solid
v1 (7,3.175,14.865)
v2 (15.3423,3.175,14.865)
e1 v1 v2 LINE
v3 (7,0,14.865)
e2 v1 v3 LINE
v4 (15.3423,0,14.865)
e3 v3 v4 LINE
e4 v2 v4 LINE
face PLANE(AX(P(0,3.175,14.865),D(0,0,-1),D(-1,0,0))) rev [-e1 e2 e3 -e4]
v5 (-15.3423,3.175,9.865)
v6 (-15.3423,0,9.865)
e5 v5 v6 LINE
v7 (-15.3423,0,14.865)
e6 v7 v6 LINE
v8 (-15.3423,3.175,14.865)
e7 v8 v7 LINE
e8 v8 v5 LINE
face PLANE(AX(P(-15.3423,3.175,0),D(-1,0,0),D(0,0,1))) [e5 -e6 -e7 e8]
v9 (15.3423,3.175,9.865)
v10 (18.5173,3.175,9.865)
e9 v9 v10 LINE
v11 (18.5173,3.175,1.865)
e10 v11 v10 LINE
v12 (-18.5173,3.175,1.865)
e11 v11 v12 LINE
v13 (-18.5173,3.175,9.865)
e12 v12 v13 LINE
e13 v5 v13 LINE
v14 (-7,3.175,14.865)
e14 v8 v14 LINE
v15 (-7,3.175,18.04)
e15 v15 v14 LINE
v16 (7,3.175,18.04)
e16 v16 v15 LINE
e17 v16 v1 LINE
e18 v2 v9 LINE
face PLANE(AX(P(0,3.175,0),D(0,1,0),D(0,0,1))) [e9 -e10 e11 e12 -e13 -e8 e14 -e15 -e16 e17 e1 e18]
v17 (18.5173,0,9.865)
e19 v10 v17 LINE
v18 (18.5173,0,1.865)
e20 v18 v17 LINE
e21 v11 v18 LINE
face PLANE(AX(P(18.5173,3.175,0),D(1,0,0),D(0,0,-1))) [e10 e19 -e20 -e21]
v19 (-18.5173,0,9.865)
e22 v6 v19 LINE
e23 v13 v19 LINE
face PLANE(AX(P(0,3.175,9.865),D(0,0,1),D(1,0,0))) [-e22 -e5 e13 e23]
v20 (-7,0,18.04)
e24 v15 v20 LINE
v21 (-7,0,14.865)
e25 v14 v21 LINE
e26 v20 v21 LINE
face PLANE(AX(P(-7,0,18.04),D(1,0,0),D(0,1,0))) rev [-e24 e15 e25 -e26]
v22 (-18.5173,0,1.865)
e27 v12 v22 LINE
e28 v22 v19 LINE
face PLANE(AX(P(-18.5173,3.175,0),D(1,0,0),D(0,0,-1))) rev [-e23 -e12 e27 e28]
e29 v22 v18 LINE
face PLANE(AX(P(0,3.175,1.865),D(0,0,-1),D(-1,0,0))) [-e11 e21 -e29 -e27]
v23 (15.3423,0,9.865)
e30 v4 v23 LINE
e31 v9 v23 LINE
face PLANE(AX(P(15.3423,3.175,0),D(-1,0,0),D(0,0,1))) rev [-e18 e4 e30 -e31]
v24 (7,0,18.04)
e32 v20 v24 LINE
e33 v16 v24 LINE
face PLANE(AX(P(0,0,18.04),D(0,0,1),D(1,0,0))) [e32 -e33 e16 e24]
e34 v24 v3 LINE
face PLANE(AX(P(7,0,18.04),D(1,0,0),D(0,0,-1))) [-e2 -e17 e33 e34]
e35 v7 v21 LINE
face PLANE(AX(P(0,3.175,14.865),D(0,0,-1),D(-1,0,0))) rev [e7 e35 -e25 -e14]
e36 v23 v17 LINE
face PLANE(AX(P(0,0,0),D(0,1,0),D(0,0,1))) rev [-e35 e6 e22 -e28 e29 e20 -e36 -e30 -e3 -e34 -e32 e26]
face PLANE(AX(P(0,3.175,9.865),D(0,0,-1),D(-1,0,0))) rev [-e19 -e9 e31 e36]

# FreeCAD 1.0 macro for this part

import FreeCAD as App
import Part
import Sketcher

V = App.Vector
Q = App.Units.Quantity


def add_polygon(sketch, points):
    """Adds a closed chain of lines whose ends are joined by coincident constraints."""
    first, n = sketch.GeometryCount, len(points)
    for a, b in zip(points, points[1:] + points[:1]):
        sketch.addGeometry(Part.LineSegment(App.Vector(*a, 0), App.Vector(*b, 0)), False)
    for i in range(n):
        sketch.addConstraint(Sketcher.Constraint("Coincident", first + i, 2, first + (i + 1) % n, 1))

doc = App.newDocument("Part")
params = doc.addObject("Spreadsheet::Sheet", "Params")
for row, (alias, value) in enumerate([
    ("sketch1_height", "8 mm"),
    ("sketch1_height2", "5 mm"),
    ("sketch1_height3", "3.73 mm"),
    ("pad1_length", "3.175 mm"),
    ("sketch2_width", "14 mm"),
    ("pad2_length", "3.175 mm"),
    ("pocket1_length", "3.175 mm"),
], start=1):
    params.set(f"A{row}", alias)
    params.set(f"B{row}", "=" + value)
    params.setAlias(f"B{row}", alias)

body = doc.addObject("PartDesign::Body", "Body")

sketch1 = body.newObject("Sketcher::SketchObject", "Sketch")
sketch1.AttachmentSupport = (doc.getObject("XZ_Plane"), [""])
sketch1.MapMode = "FlatFace"
add_polygon(sketch1, [(-18.5173, -9.865), (-18.5173, -1.865), (-15.3423, -1.865), (-15.3423, 1.865), (-18.5173, 1.865), (-18.5173, 9.865), (-15.3423, 9.865), (-15.3423, 14.865), (15.3423, 14.865), (15.3423, 9.865), (18.5173, 9.865), (18.5173, 1.865), (15.3423, 1.865), (15.3423, -1.865), (18.5173, -1.865), (18.5173, -9.865), (15.3423, -9.865), (15.3423, -14.865), (-15.3423, -14.865), (-15.3423, -9.865)])
sketch1.addConstraint([
    Sketcher.Constraint("Vertical", 0),
    Sketcher.Constraint("Horizontal", 1),
    Sketcher.Constraint("Vertical", 2),
    Sketcher.Constraint("Horizontal", 3),
    Sketcher.Constraint("Vertical", 4),
    Sketcher.Constraint("Horizontal", 5),
    Sketcher.Constraint("Vertical", 6),
    Sketcher.Constraint("Horizontal", 7),
    Sketcher.Constraint("Vertical", 8),
    Sketcher.Constraint("Horizontal", 9),
    Sketcher.Constraint("Vertical", 10),
    Sketcher.Constraint("Horizontal", 11),
    Sketcher.Constraint("Vertical", 12),
    Sketcher.Constraint("Horizontal", 13),
    Sketcher.Constraint("Vertical", 14),
    Sketcher.Constraint("Horizontal", 15),
    Sketcher.Constraint("Vertical", 16),
    Sketcher.Constraint("Horizontal", 17),
    Sketcher.Constraint("Vertical", 18),
    Sketcher.Constraint("Horizontal", 19),
    Sketcher.Constraint("Symmetric", 0, 2, 10, 2, -1, 1),
    Sketcher.Constraint("Symmetric", 2, 2, 12, 2, -1, 1),
    Sketcher.Constraint("Symmetric", 4, 2, 14, 2, -1, 1),
    Sketcher.Constraint("Symmetric", 6, 2, 16, 2, -1, 1),
    Sketcher.Constraint("Symmetric", 8, 2, 18, 2, -1, 1),
    Sketcher.Constraint("Symmetric", 5, 2, 8, 2, -2),
    Sketcher.Constraint("Symmetric", 3, 2, 10, 2, -2),
    Sketcher.Constraint("Vertical", 2, 2, 5, 2),
    Sketcher.Constraint("DistanceY", 0, 1, 0, 2, Q("8 mm")),
    Sketcher.Constraint("DistanceY", 6, 1, 6, 2, Q("5 mm")),
    Sketcher.Constraint("DistanceY", 2, 1, 2, 2, Q("3.73 mm")),
    Sketcher.Constraint("DistanceX", 1, 1, 1, 2, Q("3.175 mm")),
    Sketcher.Constraint("DistanceX", 7, 1, 7, 2, Q("30.6846 mm")),
])
sketch1.setExpression("Constraints[48]", "Params.sketch1_height")
sketch1.setExpression("Constraints[49]", "Params.sketch1_height2")
sketch1.setExpression("Constraints[50]", "Params.sketch1_height3")
pad1 = body.newObject("PartDesign::Pad", "Pad")
pad1.Profile = sketch1
pad1.setExpression("Length", "Params.pad1_length")
pad1.Reversed = True

sketch2 = body.newObject("Sketcher::SketchObject", "Sketch001")
sketch2.AttachmentSupport = (doc.getObject("XY_Plane"), [""])
sketch2.MapMode = "FlatFace"
sketch2.AttachmentOffset = App.Placement(V(0, 0, 14.865), App.Rotation())
add_polygon(sketch2, [(-7, 3.175), (-7, 0), (7, 0), (7, 3.175)])
sketch2.addConstraint([
    Sketcher.Constraint("Vertical", 0),
    Sketcher.Constraint("Horizontal", 1),
    Sketcher.Constraint("Vertical", 2),
    Sketcher.Constraint("Horizontal", 3),
    Sketcher.Constraint("Symmetric", 0, 2, 1, 2, -1, 1),
    Sketcher.Constraint("DistanceX", 1, 1, 1, 2, Q("14 mm")),
    Sketcher.Constraint("DistanceY", 0, 2, 0, 1, Q("3.175 mm")),
])
sketch2.setExpression("Constraints[9]", "Params.sketch2_width")
pad2 = body.newObject("PartDesign::Pad", "Pad001")
pad2.Profile = sketch2
pad2.setExpression("Length", "Params.pad2_length")

sketch3 = body.newObject("Sketcher::SketchObject", "Sketch002")
sketch3.AttachmentSupport = (doc.getObject("XZ_Plane"), [""])
sketch3.MapMode = "FlatFace"
sketch3.AttachmentOffset = App.Placement(V(0, 0, -3.175), App.Rotation())
add_polygon(sketch3, [(-15.3423, -15.722076), (-23.299658, -15.722076), (-23.299658, 1.865), (22.154495, 1.865), (22.154495, -15.722076), (-10.218376, -15.722076)])
sketch3.addConstraint([
    Sketcher.Constraint("Horizontal", 0),
    Sketcher.Constraint("Vertical", 1),
    Sketcher.Constraint("Horizontal", 2),
    Sketcher.Constraint("Vertical", 3),
    Sketcher.Constraint("Horizontal", 4),
    Sketcher.Constraint("Horizontal", 5),
    Sketcher.Constraint("DistanceY", -1, 1, 1, 2, Q("1.865 mm")),
    Sketcher.Constraint("DistanceX", 0, 2, 0, 1, Q("7.957358 mm")),
    Sketcher.Constraint("DistanceX", 4, 2, 4, 1, Q("32.372871 mm")),
    Sketcher.Constraint("DistanceX", 5, 2, -1, 1, Q("15.3423 mm")),
    Sketcher.Constraint("DistanceX", 2, 1, 2, 2, Q("45.454153 mm")),
    Sketcher.Constraint("DistanceY", 1, 1, 1, 2, Q("17.587076 mm")),
])
pocket1 = body.newObject("PartDesign::Pocket", "Pocket")
pocket1.Profile = sketch3
pocket1.setExpression("Length", "Params.pocket1_length")
pocket1.Reversed = True

doc.recompute()
